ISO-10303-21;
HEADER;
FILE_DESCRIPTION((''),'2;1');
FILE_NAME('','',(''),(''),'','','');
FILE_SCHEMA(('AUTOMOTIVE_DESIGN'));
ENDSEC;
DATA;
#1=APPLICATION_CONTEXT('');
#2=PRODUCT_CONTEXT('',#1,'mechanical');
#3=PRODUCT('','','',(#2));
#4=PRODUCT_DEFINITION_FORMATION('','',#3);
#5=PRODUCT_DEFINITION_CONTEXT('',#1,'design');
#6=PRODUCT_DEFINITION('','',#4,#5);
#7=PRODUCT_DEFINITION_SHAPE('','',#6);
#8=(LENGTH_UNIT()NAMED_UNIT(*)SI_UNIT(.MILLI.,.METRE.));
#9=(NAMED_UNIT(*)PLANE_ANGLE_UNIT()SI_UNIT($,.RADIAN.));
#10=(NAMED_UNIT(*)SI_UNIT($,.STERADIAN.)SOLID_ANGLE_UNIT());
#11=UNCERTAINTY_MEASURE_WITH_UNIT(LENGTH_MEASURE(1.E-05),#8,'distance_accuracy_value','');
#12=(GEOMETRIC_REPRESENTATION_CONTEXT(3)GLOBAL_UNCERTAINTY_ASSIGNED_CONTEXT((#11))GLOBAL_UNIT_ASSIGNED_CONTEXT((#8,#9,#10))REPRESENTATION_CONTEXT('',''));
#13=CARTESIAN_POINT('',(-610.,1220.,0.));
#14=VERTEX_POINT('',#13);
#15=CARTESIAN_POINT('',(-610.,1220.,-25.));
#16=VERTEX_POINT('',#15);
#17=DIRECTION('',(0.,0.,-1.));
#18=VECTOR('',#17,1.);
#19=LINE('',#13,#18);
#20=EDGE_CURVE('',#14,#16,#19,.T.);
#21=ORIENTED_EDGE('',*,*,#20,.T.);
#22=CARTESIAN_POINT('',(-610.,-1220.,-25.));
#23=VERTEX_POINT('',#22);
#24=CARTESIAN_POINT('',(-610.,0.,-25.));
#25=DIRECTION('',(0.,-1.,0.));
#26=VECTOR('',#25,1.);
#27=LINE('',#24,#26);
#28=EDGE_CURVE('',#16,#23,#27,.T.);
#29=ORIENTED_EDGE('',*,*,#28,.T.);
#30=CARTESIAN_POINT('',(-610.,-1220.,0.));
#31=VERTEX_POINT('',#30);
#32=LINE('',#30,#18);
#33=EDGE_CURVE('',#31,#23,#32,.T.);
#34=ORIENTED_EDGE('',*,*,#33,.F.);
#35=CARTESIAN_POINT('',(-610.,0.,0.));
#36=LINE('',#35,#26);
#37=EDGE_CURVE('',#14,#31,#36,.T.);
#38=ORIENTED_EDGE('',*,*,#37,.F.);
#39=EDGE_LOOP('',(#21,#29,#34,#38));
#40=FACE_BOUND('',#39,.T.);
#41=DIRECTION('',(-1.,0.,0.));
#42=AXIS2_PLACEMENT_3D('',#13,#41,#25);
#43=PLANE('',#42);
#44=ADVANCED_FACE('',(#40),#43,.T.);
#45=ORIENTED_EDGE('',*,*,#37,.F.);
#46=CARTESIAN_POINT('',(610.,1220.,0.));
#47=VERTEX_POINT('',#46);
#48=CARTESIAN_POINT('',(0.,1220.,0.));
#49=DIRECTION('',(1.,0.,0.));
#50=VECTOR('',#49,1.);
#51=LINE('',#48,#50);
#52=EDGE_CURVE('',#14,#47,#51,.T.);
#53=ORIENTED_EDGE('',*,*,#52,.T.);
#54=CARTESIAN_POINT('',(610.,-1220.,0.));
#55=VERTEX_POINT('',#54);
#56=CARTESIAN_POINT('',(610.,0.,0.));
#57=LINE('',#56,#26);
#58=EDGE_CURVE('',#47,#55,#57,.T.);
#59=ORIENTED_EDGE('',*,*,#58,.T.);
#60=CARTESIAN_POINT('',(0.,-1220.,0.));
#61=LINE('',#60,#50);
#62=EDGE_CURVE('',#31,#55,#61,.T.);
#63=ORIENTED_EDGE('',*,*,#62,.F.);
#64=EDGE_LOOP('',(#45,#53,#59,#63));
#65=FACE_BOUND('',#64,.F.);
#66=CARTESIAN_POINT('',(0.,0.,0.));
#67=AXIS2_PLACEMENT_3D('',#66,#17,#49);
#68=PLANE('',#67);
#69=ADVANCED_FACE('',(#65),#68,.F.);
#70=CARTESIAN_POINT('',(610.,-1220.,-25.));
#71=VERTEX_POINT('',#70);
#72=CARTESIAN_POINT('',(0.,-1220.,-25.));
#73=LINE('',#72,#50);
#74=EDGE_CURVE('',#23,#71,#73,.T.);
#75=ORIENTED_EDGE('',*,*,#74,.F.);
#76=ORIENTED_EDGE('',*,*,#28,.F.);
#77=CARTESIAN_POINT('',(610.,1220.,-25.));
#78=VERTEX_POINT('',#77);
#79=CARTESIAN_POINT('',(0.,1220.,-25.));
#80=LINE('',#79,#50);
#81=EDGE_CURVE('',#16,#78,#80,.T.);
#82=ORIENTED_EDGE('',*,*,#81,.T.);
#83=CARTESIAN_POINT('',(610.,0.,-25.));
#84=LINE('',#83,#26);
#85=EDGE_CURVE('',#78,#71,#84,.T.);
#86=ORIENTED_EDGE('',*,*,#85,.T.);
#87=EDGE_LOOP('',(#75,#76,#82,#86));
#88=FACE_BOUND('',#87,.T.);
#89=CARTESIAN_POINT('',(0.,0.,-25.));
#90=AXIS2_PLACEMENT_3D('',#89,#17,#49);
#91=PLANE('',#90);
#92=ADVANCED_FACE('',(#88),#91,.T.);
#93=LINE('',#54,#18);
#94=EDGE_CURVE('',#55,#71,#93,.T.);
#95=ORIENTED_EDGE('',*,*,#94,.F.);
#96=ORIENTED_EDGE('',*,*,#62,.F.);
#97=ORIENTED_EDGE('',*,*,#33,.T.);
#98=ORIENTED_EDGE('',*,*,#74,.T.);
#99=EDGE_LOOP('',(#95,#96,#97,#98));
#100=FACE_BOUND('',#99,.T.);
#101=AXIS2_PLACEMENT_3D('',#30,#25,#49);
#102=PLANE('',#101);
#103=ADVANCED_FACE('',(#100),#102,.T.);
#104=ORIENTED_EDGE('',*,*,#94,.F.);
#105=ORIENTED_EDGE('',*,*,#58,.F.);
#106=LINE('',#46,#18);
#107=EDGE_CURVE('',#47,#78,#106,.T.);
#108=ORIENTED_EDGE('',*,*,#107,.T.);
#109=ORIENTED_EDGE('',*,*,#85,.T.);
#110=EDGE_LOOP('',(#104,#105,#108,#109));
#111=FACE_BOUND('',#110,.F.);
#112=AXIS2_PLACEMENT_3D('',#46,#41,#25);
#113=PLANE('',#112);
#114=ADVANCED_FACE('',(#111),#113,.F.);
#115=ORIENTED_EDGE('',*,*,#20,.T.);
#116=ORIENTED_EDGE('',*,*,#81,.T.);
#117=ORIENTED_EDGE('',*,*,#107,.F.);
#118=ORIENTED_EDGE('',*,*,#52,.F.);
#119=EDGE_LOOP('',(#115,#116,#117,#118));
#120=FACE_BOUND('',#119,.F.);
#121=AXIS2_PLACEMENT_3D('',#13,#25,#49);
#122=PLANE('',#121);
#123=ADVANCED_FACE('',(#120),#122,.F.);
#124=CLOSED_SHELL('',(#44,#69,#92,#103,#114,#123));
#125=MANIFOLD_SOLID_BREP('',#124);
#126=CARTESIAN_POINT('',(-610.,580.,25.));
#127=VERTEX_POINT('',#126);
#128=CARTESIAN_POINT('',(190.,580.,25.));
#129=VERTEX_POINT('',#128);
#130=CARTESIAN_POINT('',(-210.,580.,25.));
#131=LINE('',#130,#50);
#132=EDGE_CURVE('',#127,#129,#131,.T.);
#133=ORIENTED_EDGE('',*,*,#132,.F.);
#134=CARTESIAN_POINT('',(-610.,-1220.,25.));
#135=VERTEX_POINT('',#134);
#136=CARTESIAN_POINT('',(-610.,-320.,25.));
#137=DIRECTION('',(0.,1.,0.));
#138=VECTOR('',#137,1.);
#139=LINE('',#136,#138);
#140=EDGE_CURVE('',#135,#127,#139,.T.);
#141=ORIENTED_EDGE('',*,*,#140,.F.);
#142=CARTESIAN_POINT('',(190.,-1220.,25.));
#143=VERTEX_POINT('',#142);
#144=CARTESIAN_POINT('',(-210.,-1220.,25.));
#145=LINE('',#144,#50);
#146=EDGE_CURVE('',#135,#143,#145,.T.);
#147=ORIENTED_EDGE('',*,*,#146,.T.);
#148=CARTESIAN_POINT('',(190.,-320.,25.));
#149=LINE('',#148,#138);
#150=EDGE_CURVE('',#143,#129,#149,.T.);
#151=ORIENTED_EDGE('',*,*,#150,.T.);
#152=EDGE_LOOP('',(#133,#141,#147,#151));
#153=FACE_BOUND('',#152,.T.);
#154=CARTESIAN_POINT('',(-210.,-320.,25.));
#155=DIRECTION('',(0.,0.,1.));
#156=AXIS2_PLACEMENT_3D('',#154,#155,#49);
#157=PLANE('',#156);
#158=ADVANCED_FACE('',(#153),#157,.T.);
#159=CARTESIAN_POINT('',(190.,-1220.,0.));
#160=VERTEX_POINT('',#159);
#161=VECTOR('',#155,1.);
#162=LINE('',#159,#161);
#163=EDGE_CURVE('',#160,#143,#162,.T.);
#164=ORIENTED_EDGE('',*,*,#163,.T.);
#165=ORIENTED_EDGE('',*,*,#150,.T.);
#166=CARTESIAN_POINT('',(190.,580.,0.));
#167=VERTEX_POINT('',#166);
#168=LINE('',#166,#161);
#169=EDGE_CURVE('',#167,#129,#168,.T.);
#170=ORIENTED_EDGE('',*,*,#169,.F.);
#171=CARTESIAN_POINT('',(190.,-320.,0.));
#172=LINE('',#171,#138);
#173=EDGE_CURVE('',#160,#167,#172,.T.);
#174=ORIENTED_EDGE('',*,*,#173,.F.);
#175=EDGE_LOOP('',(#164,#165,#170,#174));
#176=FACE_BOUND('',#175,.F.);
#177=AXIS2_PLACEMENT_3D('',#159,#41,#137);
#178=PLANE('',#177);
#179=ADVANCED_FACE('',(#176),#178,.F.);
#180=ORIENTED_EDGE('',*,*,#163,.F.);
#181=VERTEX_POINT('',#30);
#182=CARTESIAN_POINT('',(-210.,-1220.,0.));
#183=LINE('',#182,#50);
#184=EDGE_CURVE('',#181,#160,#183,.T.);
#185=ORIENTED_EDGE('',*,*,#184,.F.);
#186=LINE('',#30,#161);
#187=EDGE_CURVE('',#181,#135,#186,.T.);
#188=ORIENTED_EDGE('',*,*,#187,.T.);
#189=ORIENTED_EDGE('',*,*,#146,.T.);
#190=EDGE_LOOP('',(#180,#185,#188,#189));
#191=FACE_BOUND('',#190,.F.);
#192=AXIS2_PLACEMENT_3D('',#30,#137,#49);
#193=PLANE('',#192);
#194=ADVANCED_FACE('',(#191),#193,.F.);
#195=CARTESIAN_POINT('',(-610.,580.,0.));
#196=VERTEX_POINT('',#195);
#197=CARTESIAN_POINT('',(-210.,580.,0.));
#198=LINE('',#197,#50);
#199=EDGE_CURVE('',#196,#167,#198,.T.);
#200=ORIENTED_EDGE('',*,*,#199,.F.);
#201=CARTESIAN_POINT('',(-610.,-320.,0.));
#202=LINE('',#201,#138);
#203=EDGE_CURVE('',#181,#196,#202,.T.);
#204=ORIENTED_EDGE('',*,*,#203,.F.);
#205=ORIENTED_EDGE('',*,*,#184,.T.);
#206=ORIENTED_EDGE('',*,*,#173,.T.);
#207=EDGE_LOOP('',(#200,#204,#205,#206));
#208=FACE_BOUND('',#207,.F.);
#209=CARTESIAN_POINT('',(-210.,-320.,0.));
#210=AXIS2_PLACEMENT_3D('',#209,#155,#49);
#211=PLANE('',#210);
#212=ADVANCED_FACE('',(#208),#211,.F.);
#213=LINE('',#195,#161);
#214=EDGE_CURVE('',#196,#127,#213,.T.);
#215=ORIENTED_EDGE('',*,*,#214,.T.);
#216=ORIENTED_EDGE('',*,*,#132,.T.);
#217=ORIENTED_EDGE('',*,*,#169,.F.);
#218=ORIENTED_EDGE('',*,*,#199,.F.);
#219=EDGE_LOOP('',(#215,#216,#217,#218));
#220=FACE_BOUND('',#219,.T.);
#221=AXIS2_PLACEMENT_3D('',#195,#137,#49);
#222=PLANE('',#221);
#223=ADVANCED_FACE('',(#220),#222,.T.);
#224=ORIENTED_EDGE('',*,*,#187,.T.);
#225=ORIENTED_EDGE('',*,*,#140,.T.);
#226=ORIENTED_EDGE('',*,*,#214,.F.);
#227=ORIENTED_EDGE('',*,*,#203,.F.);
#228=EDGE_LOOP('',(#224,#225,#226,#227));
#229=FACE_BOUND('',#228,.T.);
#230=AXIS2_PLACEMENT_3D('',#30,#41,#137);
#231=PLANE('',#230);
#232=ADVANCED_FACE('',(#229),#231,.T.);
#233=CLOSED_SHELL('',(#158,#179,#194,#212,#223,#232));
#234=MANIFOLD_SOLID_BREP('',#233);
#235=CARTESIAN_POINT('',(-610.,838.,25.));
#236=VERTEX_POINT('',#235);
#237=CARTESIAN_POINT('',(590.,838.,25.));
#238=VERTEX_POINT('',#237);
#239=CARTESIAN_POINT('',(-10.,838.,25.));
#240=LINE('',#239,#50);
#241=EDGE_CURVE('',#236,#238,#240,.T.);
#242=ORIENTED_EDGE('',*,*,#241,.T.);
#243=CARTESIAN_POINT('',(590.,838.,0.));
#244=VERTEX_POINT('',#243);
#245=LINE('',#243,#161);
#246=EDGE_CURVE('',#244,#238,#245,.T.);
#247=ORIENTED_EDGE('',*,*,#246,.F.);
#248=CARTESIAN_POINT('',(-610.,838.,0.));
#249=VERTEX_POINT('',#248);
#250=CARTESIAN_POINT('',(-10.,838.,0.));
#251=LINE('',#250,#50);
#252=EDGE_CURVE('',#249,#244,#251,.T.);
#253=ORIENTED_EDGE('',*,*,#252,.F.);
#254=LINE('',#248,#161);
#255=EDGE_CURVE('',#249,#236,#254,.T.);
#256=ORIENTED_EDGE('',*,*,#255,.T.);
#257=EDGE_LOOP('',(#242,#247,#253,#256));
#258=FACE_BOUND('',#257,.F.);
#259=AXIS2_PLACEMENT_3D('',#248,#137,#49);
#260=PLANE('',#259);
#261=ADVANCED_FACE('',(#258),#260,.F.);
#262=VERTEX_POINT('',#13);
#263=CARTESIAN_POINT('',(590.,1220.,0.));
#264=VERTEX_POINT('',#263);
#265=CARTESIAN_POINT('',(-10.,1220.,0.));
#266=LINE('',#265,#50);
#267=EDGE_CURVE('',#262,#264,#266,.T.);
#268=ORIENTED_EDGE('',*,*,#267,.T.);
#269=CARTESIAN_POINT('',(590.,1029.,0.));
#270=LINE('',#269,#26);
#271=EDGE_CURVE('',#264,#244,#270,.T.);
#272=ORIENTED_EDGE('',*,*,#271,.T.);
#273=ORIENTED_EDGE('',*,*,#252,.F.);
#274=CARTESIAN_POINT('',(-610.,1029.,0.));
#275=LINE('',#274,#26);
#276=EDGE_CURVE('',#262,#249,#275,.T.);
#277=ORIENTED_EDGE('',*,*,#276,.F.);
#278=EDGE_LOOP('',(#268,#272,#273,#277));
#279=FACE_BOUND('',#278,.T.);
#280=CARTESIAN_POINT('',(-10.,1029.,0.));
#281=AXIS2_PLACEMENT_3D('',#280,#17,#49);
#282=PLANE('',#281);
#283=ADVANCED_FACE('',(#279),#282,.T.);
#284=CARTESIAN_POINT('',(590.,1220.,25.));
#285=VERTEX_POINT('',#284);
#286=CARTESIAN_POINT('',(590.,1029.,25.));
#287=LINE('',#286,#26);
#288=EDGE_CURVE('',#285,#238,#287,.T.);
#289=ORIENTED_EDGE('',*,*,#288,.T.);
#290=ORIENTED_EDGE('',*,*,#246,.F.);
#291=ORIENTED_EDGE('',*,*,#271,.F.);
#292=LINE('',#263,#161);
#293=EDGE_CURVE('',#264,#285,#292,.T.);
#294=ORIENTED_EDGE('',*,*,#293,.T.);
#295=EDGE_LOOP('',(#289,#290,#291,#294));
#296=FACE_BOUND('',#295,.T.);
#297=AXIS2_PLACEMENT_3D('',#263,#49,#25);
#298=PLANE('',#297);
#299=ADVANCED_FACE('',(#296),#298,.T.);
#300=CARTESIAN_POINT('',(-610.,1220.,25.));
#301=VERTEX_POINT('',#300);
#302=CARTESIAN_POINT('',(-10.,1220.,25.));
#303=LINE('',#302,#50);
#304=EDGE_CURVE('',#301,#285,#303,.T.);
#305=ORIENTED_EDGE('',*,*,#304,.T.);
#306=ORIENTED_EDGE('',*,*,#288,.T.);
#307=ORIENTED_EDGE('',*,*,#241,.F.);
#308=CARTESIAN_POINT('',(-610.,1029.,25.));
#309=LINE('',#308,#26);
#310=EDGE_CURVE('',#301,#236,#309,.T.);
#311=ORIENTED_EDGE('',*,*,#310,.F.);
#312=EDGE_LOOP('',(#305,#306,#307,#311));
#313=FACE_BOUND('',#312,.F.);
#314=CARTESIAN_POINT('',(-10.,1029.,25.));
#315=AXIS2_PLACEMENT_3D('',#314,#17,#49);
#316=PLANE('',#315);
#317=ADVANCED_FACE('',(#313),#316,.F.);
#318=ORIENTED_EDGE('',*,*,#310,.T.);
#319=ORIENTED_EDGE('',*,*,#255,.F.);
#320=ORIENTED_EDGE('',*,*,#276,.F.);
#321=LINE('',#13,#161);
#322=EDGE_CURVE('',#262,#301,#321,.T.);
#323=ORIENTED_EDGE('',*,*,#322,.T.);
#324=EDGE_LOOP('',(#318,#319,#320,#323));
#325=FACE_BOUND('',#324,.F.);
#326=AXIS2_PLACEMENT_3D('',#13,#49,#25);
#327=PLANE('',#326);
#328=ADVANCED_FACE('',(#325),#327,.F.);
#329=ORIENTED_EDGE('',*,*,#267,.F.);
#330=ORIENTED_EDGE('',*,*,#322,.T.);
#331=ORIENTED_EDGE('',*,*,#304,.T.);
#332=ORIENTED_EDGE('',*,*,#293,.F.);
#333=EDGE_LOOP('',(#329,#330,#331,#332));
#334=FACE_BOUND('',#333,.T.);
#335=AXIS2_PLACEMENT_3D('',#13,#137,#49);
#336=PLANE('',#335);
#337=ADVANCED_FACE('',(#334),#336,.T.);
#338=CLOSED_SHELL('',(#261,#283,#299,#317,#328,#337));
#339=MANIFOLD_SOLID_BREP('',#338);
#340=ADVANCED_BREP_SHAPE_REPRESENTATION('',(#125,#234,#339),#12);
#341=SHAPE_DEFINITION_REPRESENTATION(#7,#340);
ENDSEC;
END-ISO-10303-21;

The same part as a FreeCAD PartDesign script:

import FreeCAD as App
import Part
import Sketcher
from FreeCAD import Vector
Q = App.Units.Quantity

doc = App.newDocument("Part")
params = doc.addObject("Spreadsheet::Sheet", "Params")
for row, (alias, value) in enumerate([
    ("sketch1_width", "800 mm"),
    ("sketch1_height", "1800 mm"),
    ("pad1_length", "25 mm"),
    ("sketch2_width", "1200 mm"),
    ("sketch2_height", "382 mm"),
    ("pad2_length", "25 mm"),
    ("sketch3_width", "1220 mm"),
    ("sketch3_height", "2440 mm"),
    ("pad3_length", "25 mm"),
], start=1):
    params.set(f"A{row}", alias)
    params.set(f"B{row}", "=" + value)
    params.setAlias(f"B{row}", alias)

body = doc.addObject("PartDesign::Body", "Body")

sketch1 = doc.addObject("Sketcher::SketchObject", "Sketch")
body.addObject(sketch1)
sketch1.AttachmentSupport = (doc.XY_Plane, [""])
sketch1.MapMode = "FlatFace"
sketch1.addGeometry([
    Part.LineSegment(Vector(-610, 580, 0), Vector(-610, -1220, 0)),
    Part.LineSegment(Vector(-610, -1220, 0), Vector(190, -1220, 0)),
    Part.LineSegment(Vector(190, -1220, 0), Vector(190, 580, 0)),
    Part.LineSegment(Vector(190, 580, 0), Vector(-610, 580, 0)),
], False)
sketch1.addConstraint([
    Sketcher.Constraint("Coincident", 0, 2, 1, 1),
    Sketcher.Constraint("Coincident", 1, 2, 2, 1),
    Sketcher.Constraint("Coincident", 2, 2, 3, 1),
    Sketcher.Constraint("Coincident", 3, 2, 0, 1),
    Sketcher.Constraint("Vertical", 0),
    Sketcher.Constraint("Horizontal", 1),
    Sketcher.Constraint("Vertical", 2),
    Sketcher.Constraint("Horizontal", 3),
    Sketcher.Constraint("DistanceX", 1, 1, 1, 2, Q("800 mm")),
    Sketcher.Constraint("DistanceY", 0, 2, 0, 1, Q("1800 mm")),
    Sketcher.Constraint("DistanceX", 0, 2, -1, 1, Q("610 mm")),
    Sketcher.Constraint("DistanceY", 0, 2, -1, 1, Q("1220 mm")),
])
sketch1.setExpression("Constraints[8]", "Params.sketch1_width")
sketch1.setExpression("Constraints[9]", "Params.sketch1_height")
pad1 = doc.addObject("PartDesign::Pad", "Pad")
body.addObject(pad1)
pad1.Profile = sketch1
pad1.setExpression("Length", "Params.pad1_length")
body2 = doc.addObject("PartDesign::Body", "Body001")

sketch2 = doc.addObject("Sketcher::SketchObject", "Sketch001")
body2.addObject(sketch2)
sketch2.AttachmentSupport = (doc.getObject("XY_Plane001"), [""])
sketch2.MapMode = "FlatFace"
sketch2.addGeometry([
    Part.LineSegment(Vector(-610, 838, 0), Vector(-610, 1220, 0)),
    Part.LineSegment(Vector(-610, 1220, 0), Vector(590, 1220, 0)),
    Part.LineSegment(Vector(590, 1220, 0), Vector(590, 838, 0)),
    Part.LineSegment(Vector(590, 838, 0), Vector(-610, 838, 0)),
], False)
sketch2.addConstraint([
    Sketcher.Constraint("Coincident", 0, 2, 1, 1),
    Sketcher.Constraint("Coincident", 1, 2, 2, 1),
    Sketcher.Constraint("Coincident", 2, 2, 3, 1),
    Sketcher.Constraint("Coincident", 3, 2, 0, 1),
    Sketcher.Constraint("Vertical", 0),
    Sketcher.Constraint("Horizontal", 1),
    Sketcher.Constraint("Vertical", 2),
    Sketcher.Constraint("Horizontal", 3),
    Sketcher.Constraint("DistanceX", 1, 1, 1, 2, Q("1200 mm")),
    Sketcher.Constraint("DistanceY", 0, 1, 0, 2, Q("382 mm")),
    Sketcher.Constraint("DistanceX", 0, 2, -1, 1, Q("610 mm")),
    Sketcher.Constraint("DistanceY", -1, 1, 0, 2, Q("1220 mm")),
])
sketch2.setExpression("Constraints[8]", "Params.sketch2_width")
sketch2.setExpression("Constraints[9]", "Params.sketch2_height")
pad2 = doc.addObject("PartDesign::Pad", "Pad001")
body2.addObject(pad2)
pad2.Profile = sketch2
pad2.setExpression("Length", "Params.pad2_length")
body3 = doc.addObject("PartDesign::Body", "Body002")

sketch3 = doc.addObject("Sketcher::SketchObject", "Sketch002")
body3.addObject(sketch3)
sketch3.AttachmentSupport = (doc.getObject("XY_Plane002"), [""])
sketch3.MapMode = "FlatFace"
sketch3.addGeometry([
    Part.LineSegment(Vector(-610, -1220, 0), Vector(-610, 1220, 0)),
    Part.LineSegment(Vector(-610, 1220, 0), Vector(610, 1220, 0)),
    Part.LineSegment(Vector(610, 1220, 0), Vector(610, -1220, 0)),
    Part.LineSegment(Vector(610, -1220, 0), Vector(-610, -1220, 0)),
], False)
sketch3.addConstraint([
    Sketcher.Constraint("Coincident", 0, 2, 1, 1),
    Sketcher.Constraint("Coincident", 1, 2, 2, 1),
    Sketcher.Constraint("Coincident", 2, 2, 3, 1),
    Sketcher.Constraint("Coincident", 3, 2, 0, 1),
    Sketcher.Constraint("Vertical", 0),
    Sketcher.Constraint("Horizontal", 1),
    Sketcher.Constraint("Vertical", 2),
    Sketcher.Constraint("Horizontal", 3),
    Sketcher.Constraint("Symmetric", 0, 2, 2, 2, -1, 1),
    Sketcher.Constraint("DistanceX", 1, 1, 1, 2, Q("1220 mm")),
    Sketcher.Constraint("DistanceY", 0, 1, 0, 2, Q("2440 mm")),
])
sketch3.setExpression("Constraints[9]", "Params.sketch3_width")
sketch3.setExpression("Constraints[10]", "Params.sketch3_height")
pad3 = doc.addObject("PartDesign::Pad", "Pad002")
body3.addObject(pad3)
pad3.Profile = sketch3
pad3.setExpression("Length", "Params.pad3_length")
pad3.Reversed = True

doc.recompute()
